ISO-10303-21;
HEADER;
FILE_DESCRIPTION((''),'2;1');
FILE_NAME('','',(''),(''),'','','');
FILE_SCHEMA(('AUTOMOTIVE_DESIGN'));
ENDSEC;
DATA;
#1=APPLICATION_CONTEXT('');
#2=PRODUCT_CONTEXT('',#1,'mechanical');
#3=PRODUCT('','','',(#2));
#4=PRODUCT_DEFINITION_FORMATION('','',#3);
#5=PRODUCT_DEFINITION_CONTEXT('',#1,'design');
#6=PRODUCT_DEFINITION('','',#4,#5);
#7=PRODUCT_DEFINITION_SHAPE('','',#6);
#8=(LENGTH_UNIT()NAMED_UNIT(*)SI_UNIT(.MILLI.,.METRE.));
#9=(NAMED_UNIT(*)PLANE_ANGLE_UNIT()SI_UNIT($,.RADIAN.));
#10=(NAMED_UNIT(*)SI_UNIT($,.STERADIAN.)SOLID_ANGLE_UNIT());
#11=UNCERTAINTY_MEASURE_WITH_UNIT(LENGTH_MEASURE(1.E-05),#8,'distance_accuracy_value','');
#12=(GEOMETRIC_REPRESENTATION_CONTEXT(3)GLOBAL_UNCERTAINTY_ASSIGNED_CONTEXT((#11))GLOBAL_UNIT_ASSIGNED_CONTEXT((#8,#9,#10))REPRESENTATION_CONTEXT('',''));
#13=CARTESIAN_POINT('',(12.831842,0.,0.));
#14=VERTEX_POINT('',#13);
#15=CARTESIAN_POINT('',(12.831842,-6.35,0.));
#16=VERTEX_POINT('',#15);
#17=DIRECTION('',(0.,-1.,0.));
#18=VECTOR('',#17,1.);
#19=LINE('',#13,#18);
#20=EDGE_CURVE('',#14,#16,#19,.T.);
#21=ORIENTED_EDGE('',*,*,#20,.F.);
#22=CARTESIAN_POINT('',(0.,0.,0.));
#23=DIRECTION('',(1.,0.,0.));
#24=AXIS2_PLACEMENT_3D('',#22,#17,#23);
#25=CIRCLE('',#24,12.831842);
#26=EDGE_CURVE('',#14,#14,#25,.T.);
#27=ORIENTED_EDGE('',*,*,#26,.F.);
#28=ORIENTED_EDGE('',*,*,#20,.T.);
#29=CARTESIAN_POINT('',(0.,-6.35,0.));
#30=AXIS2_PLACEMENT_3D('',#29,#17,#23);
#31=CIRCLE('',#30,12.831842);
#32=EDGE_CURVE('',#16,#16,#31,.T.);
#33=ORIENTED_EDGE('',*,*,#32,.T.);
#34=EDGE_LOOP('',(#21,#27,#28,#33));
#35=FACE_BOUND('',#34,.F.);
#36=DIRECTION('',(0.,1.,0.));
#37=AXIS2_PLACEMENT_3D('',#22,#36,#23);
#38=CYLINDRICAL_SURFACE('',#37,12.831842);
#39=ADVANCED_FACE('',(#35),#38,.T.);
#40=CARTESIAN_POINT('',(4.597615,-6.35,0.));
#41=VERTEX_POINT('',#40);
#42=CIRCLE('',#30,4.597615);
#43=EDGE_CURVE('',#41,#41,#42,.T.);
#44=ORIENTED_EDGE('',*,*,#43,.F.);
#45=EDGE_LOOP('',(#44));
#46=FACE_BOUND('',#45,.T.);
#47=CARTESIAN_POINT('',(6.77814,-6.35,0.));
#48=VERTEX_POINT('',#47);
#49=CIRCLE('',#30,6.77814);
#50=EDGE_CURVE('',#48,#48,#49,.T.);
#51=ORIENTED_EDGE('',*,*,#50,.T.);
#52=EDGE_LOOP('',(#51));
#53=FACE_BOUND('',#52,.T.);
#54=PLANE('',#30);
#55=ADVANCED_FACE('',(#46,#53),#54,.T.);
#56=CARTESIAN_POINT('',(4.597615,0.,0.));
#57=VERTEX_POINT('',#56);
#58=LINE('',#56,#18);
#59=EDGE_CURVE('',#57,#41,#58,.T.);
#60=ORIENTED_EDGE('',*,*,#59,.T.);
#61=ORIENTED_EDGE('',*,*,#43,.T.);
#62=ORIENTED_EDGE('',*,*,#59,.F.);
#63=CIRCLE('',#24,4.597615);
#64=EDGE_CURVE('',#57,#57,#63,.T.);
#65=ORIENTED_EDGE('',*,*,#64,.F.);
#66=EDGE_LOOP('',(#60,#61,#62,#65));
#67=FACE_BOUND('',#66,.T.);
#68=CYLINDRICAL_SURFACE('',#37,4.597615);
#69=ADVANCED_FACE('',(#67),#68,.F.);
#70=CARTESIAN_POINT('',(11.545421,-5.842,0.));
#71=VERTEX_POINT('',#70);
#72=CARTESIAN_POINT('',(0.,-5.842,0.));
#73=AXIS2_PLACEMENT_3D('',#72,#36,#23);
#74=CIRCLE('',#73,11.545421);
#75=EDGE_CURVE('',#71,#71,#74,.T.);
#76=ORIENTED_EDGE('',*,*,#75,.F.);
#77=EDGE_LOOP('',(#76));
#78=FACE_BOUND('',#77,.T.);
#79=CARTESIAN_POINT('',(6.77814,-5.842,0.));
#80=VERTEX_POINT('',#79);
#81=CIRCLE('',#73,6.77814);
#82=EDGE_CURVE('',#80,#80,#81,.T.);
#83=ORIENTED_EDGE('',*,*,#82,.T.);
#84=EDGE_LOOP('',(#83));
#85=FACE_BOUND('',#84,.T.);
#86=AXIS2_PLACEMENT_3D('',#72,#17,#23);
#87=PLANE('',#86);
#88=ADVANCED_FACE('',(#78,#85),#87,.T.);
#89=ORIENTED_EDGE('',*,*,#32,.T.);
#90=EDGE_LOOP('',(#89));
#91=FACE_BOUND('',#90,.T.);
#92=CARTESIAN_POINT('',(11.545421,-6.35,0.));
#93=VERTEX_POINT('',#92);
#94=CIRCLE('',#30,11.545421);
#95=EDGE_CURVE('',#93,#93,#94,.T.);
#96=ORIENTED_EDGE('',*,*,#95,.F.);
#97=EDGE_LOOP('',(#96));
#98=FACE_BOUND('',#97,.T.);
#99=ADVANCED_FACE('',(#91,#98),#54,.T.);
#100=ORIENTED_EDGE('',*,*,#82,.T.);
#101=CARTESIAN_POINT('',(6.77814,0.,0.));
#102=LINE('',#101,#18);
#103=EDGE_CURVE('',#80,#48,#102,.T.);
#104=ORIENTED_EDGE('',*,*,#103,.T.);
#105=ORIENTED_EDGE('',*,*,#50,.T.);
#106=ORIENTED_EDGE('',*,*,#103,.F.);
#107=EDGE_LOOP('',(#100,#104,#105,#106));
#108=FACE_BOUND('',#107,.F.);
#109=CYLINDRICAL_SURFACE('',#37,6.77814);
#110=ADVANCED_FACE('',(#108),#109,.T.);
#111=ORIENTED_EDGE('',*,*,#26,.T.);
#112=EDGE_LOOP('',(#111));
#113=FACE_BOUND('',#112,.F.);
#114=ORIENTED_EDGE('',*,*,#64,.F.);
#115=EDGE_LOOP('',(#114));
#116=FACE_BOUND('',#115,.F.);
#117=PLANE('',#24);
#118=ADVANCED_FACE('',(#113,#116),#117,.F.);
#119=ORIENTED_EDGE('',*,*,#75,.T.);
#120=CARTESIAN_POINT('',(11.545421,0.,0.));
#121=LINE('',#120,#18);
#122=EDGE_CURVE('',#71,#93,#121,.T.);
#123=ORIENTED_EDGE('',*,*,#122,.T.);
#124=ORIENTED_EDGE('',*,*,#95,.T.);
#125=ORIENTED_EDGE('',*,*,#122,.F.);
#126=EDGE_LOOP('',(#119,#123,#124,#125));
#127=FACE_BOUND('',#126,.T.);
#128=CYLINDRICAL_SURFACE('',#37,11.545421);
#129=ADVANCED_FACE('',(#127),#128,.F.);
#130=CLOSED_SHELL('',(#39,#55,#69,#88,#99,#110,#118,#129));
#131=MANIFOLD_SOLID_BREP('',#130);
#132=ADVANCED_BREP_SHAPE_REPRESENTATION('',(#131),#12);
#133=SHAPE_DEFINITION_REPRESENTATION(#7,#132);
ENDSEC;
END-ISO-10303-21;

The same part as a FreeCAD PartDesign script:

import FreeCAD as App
import Part
import Sketcher
Q = App.Units.Quantity

doc = App.newDocument("Part")
body = doc.addObject("PartDesign::Body", "Body")

# Sketch on XZ plane
sketch1 = body.newObject("Sketcher::SketchObject", "Sketch")
sketch1.AttachmentSupport = (doc.getObject("XZ_Plane"), [""])
sketch1.MapMode = "FlatFace"
sketch1.addGeometry(Part.Circle(App.Vector(0, 0, 0), App.Vector(0, 0, 1), 13), False)
sketch1.addGeometry(Part.Circle(App.Vector(0, 0, 0), App.Vector(0, 0, 1), 12), False)
sketch1.addConstraint(Sketcher.Constraint("Coincident", 0, 3, -1, 1))
sketch1.addConstraint(Sketcher.Constraint("Coincident", 1, 3, -1, 1))
sketch1.addConstraint(Sketcher.Constraint("Diameter", 1, 23.090842))
sketch1.addConstraint(Sketcher.Constraint("Diameter", 0, 25.663684))
pad1 = body.newObject("PartDesign::Pad", "Pad")
pad1.Profile = sketch1
pad1.Length = Q("0.25 in")

# Sketch on XZ plane
sketch2 = body.newObject("Sketcher::SketchObject", "Sketch001")
sketch2.AttachmentSupport = (doc.getObject("XZ_Plane"), [""])
sketch2.MapMode = "FlatFace"
sketch2.addGeometry(Part.Circle(App.Vector(0, 0, 0), App.Vector(0, 0, 1), 12), False)
sketch2.addGeometry(Part.Circle(App.Vector(0, 0, 0), App.Vector(0, 0, 1), 7), False)
sketch2.addConstraint(Sketcher.Constraint("Coincident", 0, 3, -1, 1))
sketch2.addConstraint(Sketcher.Constraint("Coincident", 1, 3, -1, 1))
sketch2.addConstraint(Sketcher.Constraint("Diameter", 1, 13.53898))
sketch2.addConstraint(Sketcher.Constraint("Diameter", 0, 23.142508))
pad2 = body.newObject("PartDesign::Pad", "Pad001")
pad2.Profile = sketch2
pad2.Length = Q("0.23 in")

# Sketch on XZ plane
sketch3 = body.newObject("Sketcher::SketchObject", "Sketch002")
sketch3.AttachmentSupport = (doc.getObject("XZ_Plane"), [""])
sketch3.MapMode = "FlatFace"
sketch3.addGeometry(Part.Circle(App.Vector(0, 0, 0), App.Vector(0, 0, 1), 6.8), False)
sketch3.addGeometry(Part.Circle(App.Vector(0, 0, 0), App.Vector(0, 0, 1), 4.6), False)
sketch3.addConstraint(Sketcher.Constraint("Coincident", 0, 3, -1, 1))
sketch3.addConstraint(Sketcher.Constraint("Coincident", 1, 3, -1, 1))
sketch3.addConstraint(Sketcher.Constraint("Diameter", 0, 13.55628))
sketch3.addConstraint(Sketcher.Constraint("Diameter", 1, 9.19523))
pad3 = body.newObject("PartDesign::Pad", "Pad002")
pad3.Profile = sketch3
pad3.Length = Q("0.25 in")

doc.recompute()
